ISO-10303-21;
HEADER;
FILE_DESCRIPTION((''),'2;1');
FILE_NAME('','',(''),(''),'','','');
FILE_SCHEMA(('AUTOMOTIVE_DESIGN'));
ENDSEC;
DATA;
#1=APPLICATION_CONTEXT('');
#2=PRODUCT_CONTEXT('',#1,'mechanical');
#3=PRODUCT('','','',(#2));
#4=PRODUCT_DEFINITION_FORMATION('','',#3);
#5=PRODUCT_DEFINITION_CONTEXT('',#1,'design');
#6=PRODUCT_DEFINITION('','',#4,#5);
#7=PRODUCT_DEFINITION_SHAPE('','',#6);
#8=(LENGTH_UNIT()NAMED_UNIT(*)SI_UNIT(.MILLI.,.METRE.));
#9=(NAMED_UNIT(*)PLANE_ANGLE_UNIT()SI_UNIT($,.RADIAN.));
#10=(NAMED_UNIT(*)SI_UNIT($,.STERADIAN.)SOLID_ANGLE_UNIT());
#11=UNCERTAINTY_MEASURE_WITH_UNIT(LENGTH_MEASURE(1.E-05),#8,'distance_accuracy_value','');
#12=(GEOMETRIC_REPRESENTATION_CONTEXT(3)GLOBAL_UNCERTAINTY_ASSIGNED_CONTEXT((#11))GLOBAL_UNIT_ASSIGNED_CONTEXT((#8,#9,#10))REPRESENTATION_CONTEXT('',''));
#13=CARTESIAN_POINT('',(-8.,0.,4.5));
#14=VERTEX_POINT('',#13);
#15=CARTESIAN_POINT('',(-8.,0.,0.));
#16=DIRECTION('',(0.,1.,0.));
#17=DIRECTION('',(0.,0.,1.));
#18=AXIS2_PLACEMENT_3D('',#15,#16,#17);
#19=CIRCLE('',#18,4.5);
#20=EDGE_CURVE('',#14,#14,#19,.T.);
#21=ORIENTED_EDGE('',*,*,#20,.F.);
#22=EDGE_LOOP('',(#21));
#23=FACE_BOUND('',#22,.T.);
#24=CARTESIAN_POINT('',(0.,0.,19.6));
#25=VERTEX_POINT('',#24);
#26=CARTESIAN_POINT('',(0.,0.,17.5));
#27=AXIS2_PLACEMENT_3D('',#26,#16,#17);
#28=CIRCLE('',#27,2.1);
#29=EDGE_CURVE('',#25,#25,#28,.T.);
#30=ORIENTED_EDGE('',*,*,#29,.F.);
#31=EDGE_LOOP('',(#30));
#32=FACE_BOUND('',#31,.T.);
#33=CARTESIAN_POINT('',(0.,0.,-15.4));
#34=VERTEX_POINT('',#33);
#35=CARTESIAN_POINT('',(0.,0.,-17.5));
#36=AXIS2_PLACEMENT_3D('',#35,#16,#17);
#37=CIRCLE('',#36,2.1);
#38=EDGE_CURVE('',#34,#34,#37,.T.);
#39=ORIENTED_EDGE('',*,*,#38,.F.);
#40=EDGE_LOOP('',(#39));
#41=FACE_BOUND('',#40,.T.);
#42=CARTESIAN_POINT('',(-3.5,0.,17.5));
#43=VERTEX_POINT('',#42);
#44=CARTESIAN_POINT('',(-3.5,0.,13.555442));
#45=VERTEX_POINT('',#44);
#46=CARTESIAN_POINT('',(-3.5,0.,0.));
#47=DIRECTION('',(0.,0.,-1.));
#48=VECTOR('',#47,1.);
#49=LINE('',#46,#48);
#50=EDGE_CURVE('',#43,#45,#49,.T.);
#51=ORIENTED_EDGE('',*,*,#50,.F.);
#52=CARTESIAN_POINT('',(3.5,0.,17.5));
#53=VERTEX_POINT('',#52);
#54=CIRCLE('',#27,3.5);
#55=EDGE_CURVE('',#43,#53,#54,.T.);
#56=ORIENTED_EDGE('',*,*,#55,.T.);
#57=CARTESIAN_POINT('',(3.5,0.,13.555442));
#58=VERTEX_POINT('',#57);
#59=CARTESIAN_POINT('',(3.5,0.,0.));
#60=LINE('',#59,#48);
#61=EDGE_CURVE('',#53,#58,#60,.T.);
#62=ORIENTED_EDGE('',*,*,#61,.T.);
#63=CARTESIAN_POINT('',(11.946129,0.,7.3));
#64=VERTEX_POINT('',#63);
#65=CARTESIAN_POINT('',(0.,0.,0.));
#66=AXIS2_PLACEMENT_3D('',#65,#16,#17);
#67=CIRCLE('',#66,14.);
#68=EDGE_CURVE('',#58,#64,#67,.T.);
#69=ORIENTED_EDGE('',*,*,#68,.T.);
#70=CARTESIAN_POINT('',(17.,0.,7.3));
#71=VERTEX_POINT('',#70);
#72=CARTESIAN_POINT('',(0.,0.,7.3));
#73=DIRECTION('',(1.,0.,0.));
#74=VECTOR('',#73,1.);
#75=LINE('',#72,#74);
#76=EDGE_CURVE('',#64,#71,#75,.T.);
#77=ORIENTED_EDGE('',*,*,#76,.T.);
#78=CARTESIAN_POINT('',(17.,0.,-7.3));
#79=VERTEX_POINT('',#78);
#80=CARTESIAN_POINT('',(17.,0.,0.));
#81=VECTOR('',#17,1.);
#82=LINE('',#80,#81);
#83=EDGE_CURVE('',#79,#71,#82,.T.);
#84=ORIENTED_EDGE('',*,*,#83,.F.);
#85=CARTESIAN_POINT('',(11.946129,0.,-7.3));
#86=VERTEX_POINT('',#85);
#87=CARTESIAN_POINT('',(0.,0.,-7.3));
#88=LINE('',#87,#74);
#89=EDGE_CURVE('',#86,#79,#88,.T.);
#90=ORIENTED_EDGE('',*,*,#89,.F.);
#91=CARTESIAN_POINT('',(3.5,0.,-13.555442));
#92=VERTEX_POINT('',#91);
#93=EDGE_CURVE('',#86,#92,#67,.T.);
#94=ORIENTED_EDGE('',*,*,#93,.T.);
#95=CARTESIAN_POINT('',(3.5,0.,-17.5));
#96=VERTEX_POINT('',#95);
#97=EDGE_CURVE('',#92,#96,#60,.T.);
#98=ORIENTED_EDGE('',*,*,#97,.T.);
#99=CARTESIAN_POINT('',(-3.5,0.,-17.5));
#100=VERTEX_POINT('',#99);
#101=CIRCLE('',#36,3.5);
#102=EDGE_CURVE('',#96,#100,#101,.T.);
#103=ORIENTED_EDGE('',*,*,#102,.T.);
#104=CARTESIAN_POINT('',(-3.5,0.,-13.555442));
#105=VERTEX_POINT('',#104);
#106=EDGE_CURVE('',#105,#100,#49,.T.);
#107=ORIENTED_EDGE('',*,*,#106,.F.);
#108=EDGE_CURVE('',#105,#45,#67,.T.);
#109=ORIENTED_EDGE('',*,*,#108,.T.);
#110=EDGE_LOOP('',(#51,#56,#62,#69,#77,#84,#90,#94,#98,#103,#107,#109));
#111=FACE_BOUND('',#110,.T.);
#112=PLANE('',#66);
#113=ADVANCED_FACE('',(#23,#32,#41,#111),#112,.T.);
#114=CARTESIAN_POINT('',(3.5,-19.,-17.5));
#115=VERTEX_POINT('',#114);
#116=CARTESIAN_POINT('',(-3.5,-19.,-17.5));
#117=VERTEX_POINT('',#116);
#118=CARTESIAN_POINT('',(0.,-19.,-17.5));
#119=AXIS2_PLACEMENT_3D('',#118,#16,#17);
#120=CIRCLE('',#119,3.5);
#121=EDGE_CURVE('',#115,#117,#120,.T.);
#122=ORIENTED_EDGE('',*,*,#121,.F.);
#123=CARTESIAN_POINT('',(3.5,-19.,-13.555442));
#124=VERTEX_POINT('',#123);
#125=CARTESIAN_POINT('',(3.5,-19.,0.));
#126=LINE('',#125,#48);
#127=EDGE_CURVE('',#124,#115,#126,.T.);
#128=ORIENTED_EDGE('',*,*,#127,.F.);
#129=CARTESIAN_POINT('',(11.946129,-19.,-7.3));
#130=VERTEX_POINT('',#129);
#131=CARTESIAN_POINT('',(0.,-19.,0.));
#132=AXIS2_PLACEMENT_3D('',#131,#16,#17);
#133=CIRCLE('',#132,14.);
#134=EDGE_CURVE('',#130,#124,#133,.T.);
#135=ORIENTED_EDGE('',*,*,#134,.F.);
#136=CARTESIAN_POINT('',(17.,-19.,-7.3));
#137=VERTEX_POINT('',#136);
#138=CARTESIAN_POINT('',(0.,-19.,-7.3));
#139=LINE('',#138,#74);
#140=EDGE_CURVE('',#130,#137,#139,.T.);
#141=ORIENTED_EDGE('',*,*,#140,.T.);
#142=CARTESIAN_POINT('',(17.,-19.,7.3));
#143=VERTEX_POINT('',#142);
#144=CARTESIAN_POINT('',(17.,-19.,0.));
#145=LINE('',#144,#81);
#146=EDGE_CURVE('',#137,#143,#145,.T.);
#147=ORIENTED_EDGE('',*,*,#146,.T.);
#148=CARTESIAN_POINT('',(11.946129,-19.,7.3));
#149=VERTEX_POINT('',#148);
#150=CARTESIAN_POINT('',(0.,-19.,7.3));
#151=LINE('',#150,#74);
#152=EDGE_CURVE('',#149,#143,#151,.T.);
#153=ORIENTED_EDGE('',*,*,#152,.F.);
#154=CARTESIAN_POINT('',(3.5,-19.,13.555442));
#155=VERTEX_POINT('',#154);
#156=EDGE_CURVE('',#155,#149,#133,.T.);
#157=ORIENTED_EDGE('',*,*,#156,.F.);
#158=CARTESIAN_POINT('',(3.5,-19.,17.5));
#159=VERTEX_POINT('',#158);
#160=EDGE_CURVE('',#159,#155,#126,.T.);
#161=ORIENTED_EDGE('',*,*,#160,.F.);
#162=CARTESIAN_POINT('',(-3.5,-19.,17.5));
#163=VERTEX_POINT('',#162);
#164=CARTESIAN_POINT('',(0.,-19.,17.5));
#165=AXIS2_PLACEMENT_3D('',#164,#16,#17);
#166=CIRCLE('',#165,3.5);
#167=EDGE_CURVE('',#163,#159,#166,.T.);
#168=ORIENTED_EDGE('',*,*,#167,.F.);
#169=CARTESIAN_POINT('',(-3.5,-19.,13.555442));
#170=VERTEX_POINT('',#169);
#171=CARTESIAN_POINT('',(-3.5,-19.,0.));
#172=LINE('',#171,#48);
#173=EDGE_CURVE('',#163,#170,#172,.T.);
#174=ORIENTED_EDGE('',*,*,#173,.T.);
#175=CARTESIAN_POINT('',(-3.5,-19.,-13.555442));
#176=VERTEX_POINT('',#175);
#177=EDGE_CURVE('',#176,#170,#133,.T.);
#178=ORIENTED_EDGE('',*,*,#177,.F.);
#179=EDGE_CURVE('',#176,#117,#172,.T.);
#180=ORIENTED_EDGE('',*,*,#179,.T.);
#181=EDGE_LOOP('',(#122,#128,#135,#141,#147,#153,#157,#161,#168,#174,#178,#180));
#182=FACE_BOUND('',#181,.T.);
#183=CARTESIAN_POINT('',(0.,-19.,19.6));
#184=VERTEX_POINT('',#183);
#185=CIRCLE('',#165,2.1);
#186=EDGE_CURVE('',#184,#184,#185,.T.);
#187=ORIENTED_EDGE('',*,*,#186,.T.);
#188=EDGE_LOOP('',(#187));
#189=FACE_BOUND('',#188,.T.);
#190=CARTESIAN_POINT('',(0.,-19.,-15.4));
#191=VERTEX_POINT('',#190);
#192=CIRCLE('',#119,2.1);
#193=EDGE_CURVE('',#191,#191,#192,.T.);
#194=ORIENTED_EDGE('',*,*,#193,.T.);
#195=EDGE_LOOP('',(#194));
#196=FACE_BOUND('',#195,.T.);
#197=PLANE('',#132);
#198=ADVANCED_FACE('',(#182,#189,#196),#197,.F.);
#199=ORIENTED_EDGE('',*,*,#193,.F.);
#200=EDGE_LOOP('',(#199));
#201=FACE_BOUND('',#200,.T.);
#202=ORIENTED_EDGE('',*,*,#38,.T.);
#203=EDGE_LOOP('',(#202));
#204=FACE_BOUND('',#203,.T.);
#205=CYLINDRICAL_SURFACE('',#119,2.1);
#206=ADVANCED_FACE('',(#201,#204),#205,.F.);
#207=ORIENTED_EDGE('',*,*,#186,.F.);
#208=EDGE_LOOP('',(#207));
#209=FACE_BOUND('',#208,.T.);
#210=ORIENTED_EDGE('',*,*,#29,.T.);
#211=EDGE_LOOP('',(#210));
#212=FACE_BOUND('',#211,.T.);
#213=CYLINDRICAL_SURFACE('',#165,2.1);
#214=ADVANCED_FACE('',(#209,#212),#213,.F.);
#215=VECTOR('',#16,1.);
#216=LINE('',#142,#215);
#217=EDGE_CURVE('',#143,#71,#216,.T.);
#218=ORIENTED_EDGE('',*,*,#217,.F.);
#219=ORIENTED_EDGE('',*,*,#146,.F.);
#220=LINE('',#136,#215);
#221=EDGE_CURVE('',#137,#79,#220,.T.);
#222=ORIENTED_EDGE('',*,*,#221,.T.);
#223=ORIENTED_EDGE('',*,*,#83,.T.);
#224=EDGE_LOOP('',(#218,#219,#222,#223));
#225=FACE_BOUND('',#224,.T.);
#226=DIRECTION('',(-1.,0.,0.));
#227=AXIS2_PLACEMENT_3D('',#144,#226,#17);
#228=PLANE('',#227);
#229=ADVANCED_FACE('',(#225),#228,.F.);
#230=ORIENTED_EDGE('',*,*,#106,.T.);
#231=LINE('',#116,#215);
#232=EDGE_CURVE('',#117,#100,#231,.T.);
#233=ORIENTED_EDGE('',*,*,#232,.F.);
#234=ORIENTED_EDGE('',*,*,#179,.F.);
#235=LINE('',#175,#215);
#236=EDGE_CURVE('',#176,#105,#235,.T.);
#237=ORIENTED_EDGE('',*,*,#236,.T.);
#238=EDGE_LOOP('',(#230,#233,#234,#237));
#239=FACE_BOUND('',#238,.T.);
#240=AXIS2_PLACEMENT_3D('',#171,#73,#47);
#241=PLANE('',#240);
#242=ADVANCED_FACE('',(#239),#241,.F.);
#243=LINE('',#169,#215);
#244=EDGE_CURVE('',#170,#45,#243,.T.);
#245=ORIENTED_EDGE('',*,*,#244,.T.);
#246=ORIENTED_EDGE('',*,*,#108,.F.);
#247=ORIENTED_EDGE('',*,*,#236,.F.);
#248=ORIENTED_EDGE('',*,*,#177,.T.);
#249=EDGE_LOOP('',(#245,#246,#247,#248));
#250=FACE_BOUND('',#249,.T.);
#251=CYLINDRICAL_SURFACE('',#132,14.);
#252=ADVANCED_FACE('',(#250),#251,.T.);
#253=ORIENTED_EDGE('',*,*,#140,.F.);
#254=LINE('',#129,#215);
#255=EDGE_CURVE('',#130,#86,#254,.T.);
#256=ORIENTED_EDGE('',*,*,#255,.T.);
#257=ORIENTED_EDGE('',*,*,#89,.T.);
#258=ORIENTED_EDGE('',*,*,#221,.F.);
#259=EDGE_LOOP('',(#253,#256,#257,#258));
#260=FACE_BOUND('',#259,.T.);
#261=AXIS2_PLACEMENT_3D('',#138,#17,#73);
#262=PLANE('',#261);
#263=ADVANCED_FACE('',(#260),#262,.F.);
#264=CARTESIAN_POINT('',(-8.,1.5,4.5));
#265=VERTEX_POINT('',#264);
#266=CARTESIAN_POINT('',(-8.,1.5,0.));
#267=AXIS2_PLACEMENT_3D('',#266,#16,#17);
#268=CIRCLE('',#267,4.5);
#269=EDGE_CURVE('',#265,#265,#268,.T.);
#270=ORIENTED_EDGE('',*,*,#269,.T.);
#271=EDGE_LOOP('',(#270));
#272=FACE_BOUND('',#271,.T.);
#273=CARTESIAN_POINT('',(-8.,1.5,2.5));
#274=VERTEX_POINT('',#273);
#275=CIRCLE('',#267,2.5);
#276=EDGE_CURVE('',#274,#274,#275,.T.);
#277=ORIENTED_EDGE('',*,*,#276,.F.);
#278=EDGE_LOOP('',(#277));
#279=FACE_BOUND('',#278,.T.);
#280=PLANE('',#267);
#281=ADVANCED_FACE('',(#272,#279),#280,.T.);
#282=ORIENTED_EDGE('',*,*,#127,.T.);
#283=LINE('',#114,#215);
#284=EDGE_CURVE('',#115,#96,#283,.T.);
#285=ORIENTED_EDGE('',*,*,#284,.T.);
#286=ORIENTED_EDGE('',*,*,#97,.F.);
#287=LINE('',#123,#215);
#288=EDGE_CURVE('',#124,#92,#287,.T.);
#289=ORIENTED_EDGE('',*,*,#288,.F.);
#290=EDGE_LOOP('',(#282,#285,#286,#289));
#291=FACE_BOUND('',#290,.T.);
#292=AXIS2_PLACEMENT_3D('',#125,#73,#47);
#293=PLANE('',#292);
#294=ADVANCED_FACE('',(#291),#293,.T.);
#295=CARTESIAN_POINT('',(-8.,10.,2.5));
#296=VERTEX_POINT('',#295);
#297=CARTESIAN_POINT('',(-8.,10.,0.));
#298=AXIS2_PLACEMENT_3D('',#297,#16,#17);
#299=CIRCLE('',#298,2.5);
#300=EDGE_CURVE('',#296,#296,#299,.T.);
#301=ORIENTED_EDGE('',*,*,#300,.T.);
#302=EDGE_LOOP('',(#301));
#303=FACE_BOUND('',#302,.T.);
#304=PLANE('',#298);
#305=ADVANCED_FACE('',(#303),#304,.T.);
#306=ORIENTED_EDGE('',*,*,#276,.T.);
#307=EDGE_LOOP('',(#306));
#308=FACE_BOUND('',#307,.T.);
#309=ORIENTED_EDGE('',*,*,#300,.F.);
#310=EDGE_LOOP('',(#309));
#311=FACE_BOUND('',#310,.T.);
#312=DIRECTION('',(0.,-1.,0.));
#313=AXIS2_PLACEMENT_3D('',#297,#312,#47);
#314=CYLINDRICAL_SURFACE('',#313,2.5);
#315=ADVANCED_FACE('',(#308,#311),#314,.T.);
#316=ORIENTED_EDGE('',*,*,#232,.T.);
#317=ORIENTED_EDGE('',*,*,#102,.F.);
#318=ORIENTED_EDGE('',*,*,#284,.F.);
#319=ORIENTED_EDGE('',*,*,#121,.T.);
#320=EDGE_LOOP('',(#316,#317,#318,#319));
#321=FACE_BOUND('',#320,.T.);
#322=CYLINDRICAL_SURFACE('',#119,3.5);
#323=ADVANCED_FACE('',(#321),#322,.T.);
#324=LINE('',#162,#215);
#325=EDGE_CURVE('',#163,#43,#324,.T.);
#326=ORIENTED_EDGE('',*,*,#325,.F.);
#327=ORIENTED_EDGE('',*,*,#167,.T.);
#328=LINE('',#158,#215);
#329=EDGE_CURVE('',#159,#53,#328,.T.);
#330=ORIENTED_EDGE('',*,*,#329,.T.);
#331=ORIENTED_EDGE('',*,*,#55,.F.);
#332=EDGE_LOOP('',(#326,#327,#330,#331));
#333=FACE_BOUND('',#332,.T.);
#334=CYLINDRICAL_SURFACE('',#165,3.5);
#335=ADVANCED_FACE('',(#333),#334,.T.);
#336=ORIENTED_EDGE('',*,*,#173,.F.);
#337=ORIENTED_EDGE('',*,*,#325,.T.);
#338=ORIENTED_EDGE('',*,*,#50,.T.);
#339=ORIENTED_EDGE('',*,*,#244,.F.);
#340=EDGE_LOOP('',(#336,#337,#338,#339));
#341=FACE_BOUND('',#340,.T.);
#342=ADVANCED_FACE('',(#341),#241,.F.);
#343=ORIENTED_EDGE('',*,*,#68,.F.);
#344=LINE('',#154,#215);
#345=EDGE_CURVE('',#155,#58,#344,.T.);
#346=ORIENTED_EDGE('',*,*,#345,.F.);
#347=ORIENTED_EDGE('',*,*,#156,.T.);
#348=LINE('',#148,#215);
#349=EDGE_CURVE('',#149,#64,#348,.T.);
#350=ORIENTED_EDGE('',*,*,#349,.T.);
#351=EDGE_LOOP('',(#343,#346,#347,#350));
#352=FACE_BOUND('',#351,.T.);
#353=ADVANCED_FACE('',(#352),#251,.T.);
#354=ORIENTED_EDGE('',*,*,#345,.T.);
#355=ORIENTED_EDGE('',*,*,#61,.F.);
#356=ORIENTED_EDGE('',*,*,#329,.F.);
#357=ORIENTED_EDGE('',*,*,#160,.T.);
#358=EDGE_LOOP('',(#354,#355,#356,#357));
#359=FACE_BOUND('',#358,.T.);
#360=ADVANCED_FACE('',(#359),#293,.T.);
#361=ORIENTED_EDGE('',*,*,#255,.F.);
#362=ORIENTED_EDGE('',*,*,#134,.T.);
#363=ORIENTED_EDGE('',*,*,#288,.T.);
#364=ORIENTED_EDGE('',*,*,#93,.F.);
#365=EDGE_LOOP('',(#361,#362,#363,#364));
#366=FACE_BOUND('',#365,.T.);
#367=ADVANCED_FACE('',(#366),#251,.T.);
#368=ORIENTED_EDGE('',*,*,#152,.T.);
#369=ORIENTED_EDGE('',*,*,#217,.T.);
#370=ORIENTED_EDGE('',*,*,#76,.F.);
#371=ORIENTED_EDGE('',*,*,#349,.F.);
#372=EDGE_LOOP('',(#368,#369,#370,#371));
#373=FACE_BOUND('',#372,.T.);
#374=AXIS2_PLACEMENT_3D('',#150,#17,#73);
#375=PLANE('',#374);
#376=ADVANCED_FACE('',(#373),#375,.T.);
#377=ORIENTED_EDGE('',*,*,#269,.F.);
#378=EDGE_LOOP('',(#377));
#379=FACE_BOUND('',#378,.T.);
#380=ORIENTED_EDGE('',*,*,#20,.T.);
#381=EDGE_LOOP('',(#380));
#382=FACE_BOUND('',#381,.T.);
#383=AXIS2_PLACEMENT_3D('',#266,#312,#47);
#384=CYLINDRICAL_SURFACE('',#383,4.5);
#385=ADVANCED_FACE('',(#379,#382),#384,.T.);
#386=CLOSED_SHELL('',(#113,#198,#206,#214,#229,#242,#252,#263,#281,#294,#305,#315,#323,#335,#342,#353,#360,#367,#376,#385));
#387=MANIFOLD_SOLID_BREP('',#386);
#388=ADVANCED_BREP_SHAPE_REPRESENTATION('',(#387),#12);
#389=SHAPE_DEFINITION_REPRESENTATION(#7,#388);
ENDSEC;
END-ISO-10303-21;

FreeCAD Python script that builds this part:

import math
import FreeCAD as App
import Part
import Sketcher
from FreeCAD import Vector

doc = App.newDocument("Part")
params = doc.addObject("Spreadsheet::Sheet", "Params")
for row, (alias, value) in enumerate([
    ("sketch1_radius", "14 mm"),
    ("sketch1_diameter", "4.2 mm"),
    ("sketch1_radius2", "3.5 mm"),
    ("sketch1_height", "14.6 mm"),
    ("pad1_length", "19 mm"),
    ("sketch2_diameter", "9 mm"),
    ("pad2_length", "1.5 mm"),
    ("sketch3_diameter", "5 mm"),
    ("pad3_length", "8.5 mm"),
], start=1):
    params.set(f"A{row}", alias)
    params.set(f"B{row}", "=" + value)
    params.setAlias(f"B{row}", alias)

body = doc.addObject("PartDesign::Body", "Body")

# Sketch on XZ plane
sketch1 = doc.addObject("Sketcher::SketchObject", "Sketch")
body.addObject(sketch1)
sketch1.AttachmentSupport = (doc.XZ_Plane, [""])
sketch1.MapMode = "FlatFace"
sketch1.addGeometry([
    Part.LineSegment(Vector(11.946129, 7.3, 0), Vector(17, 7.3, 0)),  # 0
    Part.LineSegment(Vector(17, 7.3, 0), Vector(17, -7.3, 0)),  # 1
    Part.LineSegment(Vector(17, -7.3, 0), Vector(11.946129, -7.3, 0)),  # 2
    Part.ArcOfCircle(Part.Circle(Vector(0, 0, 0), Vector(0, 0, 1), 14), math.radians(-75.522488), math.radians(-31.428126)),  # 3
    Part.LineSegment(Vector(3.5, -13.555442, 0), Vector(3.5, -17.5, 0)),  # 4
    Part.ArcOfCircle(Part.Circle(Vector(0, -17.5, 0), Vector(0, 0, 1), 3.5), math.radians(180), math.radians(360)),  # 5
    Part.LineSegment(Vector(-3.5, -17.5, 0), Vector(-3.5, -13.555442, 0)),  # 6
    Part.ArcOfCircle(Part.Circle(Vector(0, 0, 0), Vector(0, 0, 1), 14), math.radians(104.477512), math.radians(255.522488)),  # 7
    Part.LineSegment(Vector(-3.5, 13.555442, 0), Vector(-3.5, 17.5, 0)),  # 8
    Part.ArcOfCircle(Part.Circle(Vector(0, 17.5, 0), Vector(0, 0, 1), 3.5), math.radians(0), math.radians(180)),  # 9
    Part.LineSegment(Vector(3.5, 17.5, 0), Vector(3.5, 13.555442, 0)),  # 10
    Part.ArcOfCircle(Part.Circle(Vector(0, 0, 0), Vector(0, 0, 1), 14), math.radians(31.428126), math.radians(75.522488)),  # 11
    Part.Circle(Vector(0, -17.5, 0), Vector(0, 0, 1), 2.1),  # 12
    Part.Circle(Vector(0, 17.5, 0), Vector(0, 0, 1), 2.1),  # 13
], False)
sketch1.addConstraint([
    Sketcher.Constraint("Coincident", 0, 2, 1, 1),
    Sketcher.Constraint("Coincident", 1, 2, 2, 1),
    Sketcher.Constraint("Coincident", 2, 2, 3, 2),
    Sketcher.Constraint("Coincident", 3, 1, 4, 1),
    Sketcher.Constraint("Tangent", 4, 2, 5, 2),
    Sketcher.Constraint("Tangent", 5, 1, 6, 1),
    Sketcher.Constraint("Coincident", 6, 2, 7, 2),
    Sketcher.Constraint("Coincident", 7, 1, 8, 1),
    Sketcher.Constraint("Tangent", 8, 2, 9, 2),
    Sketcher.Constraint("Tangent", 9, 1, 10, 1),
    Sketcher.Constraint("Coincident", 10, 2, 11, 2),
    Sketcher.Constraint("Coincident", 11, 1, 0, 1),
    Sketcher.Constraint("Horizontal", 0),
    Sketcher.Constraint("Vertical", 1),
    Sketcher.Constraint("Horizontal", 2),
    Sketcher.Constraint("Vertical", 4),
    Sketcher.Constraint("Vertical", 6),
    Sketcher.Constraint("Vertical", 8),
    Sketcher.Constraint("Vertical", 10),
    Sketcher.Constraint("Coincident", 3, 3, -1, 1),
    Sketcher.Constraint("Coincident", 7, 3, -1, 1),
    Sketcher.Constraint("Coincident", 11, 3, -1, 1),
    Sketcher.Constraint("Coincident", 12, 3, 5, 3),
    Sketcher.Constraint("Coincident", 13, 3, 9, 3),
    Sketcher.Constraint("Equal", 3, 7),
    Sketcher.Constraint("Equal", 5, 9),
    Sketcher.Constraint("Equal", 7, 11),
    Sketcher.Constraint("Equal", 12, 13),
    Sketcher.Constraint("Symmetric", 5, 3, 9, 3, -1, 1),
    Sketcher.Constraint("PointOnObject", 5, 3, -2),
    Sketcher.Constraint("Vertical", 2, 2, 11, 1),
    Sketcher.Constraint("Radius", 3, 14.0),
    Sketcher.Constraint("Diameter", 12, 4.2),
    Sketcher.Constraint("Radius", 5, 3.5),
    Sketcher.Constraint("DistanceY", 1, 2, 1, 1, 14.6),
    Sketcher.Constraint("DistanceX", -1, 1, 0, 2, 17.0),
    Sketcher.Constraint("DistanceY", 5, 3, 9, 3, 35.0),
])
sketch1.setExpression("Constraints[31]", "Params.sketch1_radius")
sketch1.setExpression("Constraints[32]", "Params.sketch1_diameter")
sketch1.setExpression("Constraints[33]", "Params.sketch1_radius2")
sketch1.setExpression("Constraints[34]", "Params.sketch1_height")
pad1 = doc.addObject("PartDesign::Pad", "Pad")
body.addObject(pad1)
pad1.Profile = sketch1
pad1.setExpression("Length", "Params.pad1_length")

# Sketch on XZ plane
sketch2 = doc.addObject("Sketcher::SketchObject", "Sketch001")
body.addObject(sketch2)
sketch2.AttachmentSupport = (doc.XZ_Plane, [""])
sketch2.MapMode = "FlatFace"
sketch2.addGeometry(Part.Circle(Vector(-8, 0, 0), Vector(0, 0, 1), 4.5), False)
sketch2.addConstraint([
    Sketcher.Constraint("PointOnObject", 0, 3, -1),
    Sketcher.Constraint("Diameter", 0, 9.0),
    Sketcher.Constraint("DistanceX", 0, 3, -1, 1, 8.0),
])
sketch2.setExpression("Constraints[1]", "Params.sketch2_diameter")
pad2 = doc.addObject("PartDesign::Pad", "Pad001")
body.addObject(pad2)
pad2.Profile = sketch2
pad2.setExpression("Length", "Params.pad2_length")
pad2.Reversed = True

# Sketch on XZ plane
sketch3 = doc.addObject("Sketcher::SketchObject", "Sketch002")
body.addObject(sketch3)
sketch3.AttachmentSupport = (doc.XZ_Plane, [""])
sketch3.MapMode = "FlatFace"
sketch3.AttachmentOffset = App.Placement(Vector(0, 0, -1.5), App.Rotation())
sketch3.addGeometry(Part.Circle(Vector(-8, 0, 0), Vector(0, 0, 1), 2.5), False)
sketch3.addConstraint([
    Sketcher.Constraint("PointOnObject", 0, 3, -1),
    Sketcher.Constraint("Diameter", 0, 5.0),
    Sketcher.Constraint("DistanceX", 0, 3, -1, 1, 8.0),
])
sketch3.setExpression("Constraints[1]", "Params.sketch3_diameter")
pad3 = doc.addObject("PartDesign::Pad", "Pad002")
body.addObject(pad3)
pad3.Profile = sketch3
pad3.setExpression("Length", "Params.pad3_length")
pad3.Reversed = True

doc.recompute()
